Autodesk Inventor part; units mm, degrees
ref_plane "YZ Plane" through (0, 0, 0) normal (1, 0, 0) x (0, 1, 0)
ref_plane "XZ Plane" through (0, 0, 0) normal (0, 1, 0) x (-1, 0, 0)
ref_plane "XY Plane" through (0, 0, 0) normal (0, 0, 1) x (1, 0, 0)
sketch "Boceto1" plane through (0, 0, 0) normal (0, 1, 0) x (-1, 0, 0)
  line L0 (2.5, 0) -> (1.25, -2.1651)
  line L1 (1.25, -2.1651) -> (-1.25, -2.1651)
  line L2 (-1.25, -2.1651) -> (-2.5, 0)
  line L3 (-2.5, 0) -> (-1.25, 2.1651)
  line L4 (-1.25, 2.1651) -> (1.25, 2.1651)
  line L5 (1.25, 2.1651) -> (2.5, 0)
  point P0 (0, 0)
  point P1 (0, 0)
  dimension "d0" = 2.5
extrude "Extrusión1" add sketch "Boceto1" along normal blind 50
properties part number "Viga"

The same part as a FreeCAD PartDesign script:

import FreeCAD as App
import Part
import Sketcher
Q = App.Units.Quantity

doc = App.newDocument("Part")
body = doc.addObject("PartDesign::Body", "Body")

# Sketch on XZ plane
sketch1 = doc.addObject("Sketcher::SketchObject", "Sketch")
body.addObject(sketch1)
sketch1.AttachmentSupport = (doc.XZ_Plane, [""])
sketch1.MapMode = "FlatFace"
sketch1.addGeometry([
    Part.LineSegment(App.Vector(-1.25, -2.1651, 0), App.Vector(-2.5, 0, 0)),  # 0
    Part.LineSegment(App.Vector(-2.5, 0, 0), App.Vector(-1.25, 2.1651, 0)),  # 1
    Part.LineSegment(App.Vector(-1.25, 2.1651, 0), App.Vector(1.25, 2.1651, 0)),  # 2
    Part.LineSegment(App.Vector(1.25, 2.1651, 0), App.Vector(2.5, 0, 0)),  # 3
    Part.LineSegment(App.Vector(2.5, 0, 0), App.Vector(1.25, -2.1651, 0)),  # 4
    Part.LineSegment(App.Vector(1.25, -2.1651, 0), App.Vector(-1.25, -2.1651, 0)),  # 5
], False)
sketch1.addConstraint([
    Sketcher.Constraint("Coincident", 0, 2, 1, 1),
    Sketcher.Constraint("Coincident", 1, 2, 2, 1),
    Sketcher.Constraint("Coincident", 2, 2, 3, 1),
    Sketcher.Constraint("Coincident", 3, 2, 4, 1),
    Sketcher.Constraint("Coincident", 4, 2, 5, 1),
    Sketcher.Constraint("Coincident", 5, 2, 0, 1),
    Sketcher.Constraint("Horizontal", 2),
    Sketcher.Constraint("Horizontal", 5),
    Sketcher.Constraint("Symmetric", 0, 2, 3, 2, -1, 1),
    Sketcher.Constraint("Symmetric", 1, 2, 4, 2, -1, 1),
    Sketcher.Constraint("PointOnObject", 0, 2, -1),
    Sketcher.Constraint("Parallel", 0, 3),
    Sketcher.Constraint("Vertical", 2, 2, 4, 2),
    Sketcher.Constraint("DistanceX", 2, 1, 2, 2, Q("2.5 mm")),
    Sketcher.Constraint("Distance", 0, Q("2.5 mm")),
    Sketcher.Constraint("DistanceX", 0, 2, -1, 1, Q("2.5 mm")),
])
pad1 = doc.addObject("PartDesign::Pad", "Pad")
body.addObject(pad1)
pad1.Profile = sketch1
pad1.Length = 50
pad1.Reversed = True

doc.recompute()
